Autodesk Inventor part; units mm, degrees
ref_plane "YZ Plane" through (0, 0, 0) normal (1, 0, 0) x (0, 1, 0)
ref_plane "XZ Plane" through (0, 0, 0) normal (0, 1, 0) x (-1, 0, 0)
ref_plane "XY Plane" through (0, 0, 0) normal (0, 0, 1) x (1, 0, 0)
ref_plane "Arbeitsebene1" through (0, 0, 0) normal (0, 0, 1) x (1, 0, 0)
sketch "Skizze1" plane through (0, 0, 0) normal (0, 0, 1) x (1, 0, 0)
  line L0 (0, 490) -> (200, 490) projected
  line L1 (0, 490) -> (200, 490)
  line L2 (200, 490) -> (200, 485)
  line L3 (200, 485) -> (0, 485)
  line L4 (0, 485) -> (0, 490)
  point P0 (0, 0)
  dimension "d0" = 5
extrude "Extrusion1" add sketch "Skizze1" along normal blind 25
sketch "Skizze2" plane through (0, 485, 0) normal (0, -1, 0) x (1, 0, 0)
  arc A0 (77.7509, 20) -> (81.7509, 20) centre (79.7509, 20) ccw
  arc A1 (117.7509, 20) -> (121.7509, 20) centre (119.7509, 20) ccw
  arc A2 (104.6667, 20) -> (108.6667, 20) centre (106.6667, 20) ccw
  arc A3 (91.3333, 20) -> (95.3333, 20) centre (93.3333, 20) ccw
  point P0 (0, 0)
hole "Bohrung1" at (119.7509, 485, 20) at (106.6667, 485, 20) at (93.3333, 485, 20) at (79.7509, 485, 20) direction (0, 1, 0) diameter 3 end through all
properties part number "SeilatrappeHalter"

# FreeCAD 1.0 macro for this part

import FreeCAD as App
import Part
import Sketcher

doc = App.newDocument("Part")
body = doc.addObject("PartDesign::Body", "Body")

# Sketch on XY plane
sketch1 = body.newObject("Sketcher::SketchObject", "Sketch")
sketch1.AttachmentSupport = (doc.getObject("XY_Plane"), [""])
sketch1.MapMode = "FlatFace"
sketch1.addGeometry(Part.LineSegment(App.Vector(200, 490, 0), App.Vector(0, 490, 0)), False)
sketch1.addGeometry(Part.LineSegment(App.Vector(0, 490, 0), App.Vector(0, 485, 0)), False)
sketch1.addGeometry(Part.LineSegment(App.Vector(0, 485, 0), App.Vector(200, 485, 0)), False)
sketch1.addGeometry(Part.LineSegment(App.Vector(200, 485, 0), App.Vector(200, 490, 0)), False)
sketch1.addConstraint(Sketcher.Constraint("Coincident", 0, 2, 1, 1))
sketch1.addConstraint(Sketcher.Constraint("Coincident", 1, 2, 2, 1))
sketch1.addConstraint(Sketcher.Constraint("Coincident", 2, 2, 3, 1))
sketch1.addConstraint(Sketcher.Constraint("Coincident", 3, 2, 0, 1))
sketch1.addConstraint(Sketcher.Constraint("Horizontal", 0))
sketch1.addConstraint(Sketcher.Constraint("Vertical", 1))
sketch1.addConstraint(Sketcher.Constraint("Horizontal", 2))
sketch1.addConstraint(Sketcher.Constraint("Vertical", 3))
sketch1.addConstraint(Sketcher.Constraint("PointOnObject", 0, 2, -2))
sketch1.addConstraint(Sketcher.Constraint("DistanceY", 1, 2, 1, 1, 5.0))
sketch1.addConstraint(Sketcher.Constraint("DistanceX", 0, 2, 0, 1, 200.0))
sketch1.addConstraint(Sketcher.Constraint("DistanceY", -1, 1, 0, 2, 490.0))
pad1 = body.newObject("PartDesign::Pad", "Pad")
pad1.Profile = sketch1
pad1.Length = 25

# Sketch on XZ plane
sketch2 = body.newObject("Sketcher::SketchObject", "Sketch001")
sketch2.AttachmentSupport = (doc.getObject("XZ_Plane"), [""])
sketch2.MapMode = "FlatFace"
sketch2.AttachmentOffset = App.Placement(App.Vector(0, 0, -485), App.Rotation())
sketch2.addGeometry(Part.Circle(App.Vector(119.7509, 20, 0), App.Vector(0, 0, 1), 1.5), False)
sketch2.addGeometry(Part.Circle(App.Vector(106.6667, 20, 0), App.Vector(0, 0, 1), 1.5), False)
sketch2.addGeometry(Part.Circle(App.Vector(93.3333, 20, 0), App.Vector(0, 0, 1), 1.5), False)
sketch2.addGeometry(Part.Circle(App.Vector(79.7509, 20, 0), App.Vector(0, 0, 1), 1.5), False)
sketch2.addConstraint(Sketcher.Constraint("Equal", 0, 1))
sketch2.addConstraint(Sketcher.Constraint("Equal", 1, 2))
sketch2.addConstraint(Sketcher.Constraint("Equal", 2, 3))
sketch2.addConstraint(Sketcher.Constraint("Horizontal", 0, 3, 1, 3))
sketch2.addConstraint(Sketcher.Constraint("Horizontal", 1, 3, 2, 3))
sketch2.addConstraint(Sketcher.Constraint("Horizontal", 2, 3, 3, 3))
sketch2.addConstraint(Sketcher.Constraint("Diameter", 0, 3.0))
sketch2.addConstraint(Sketcher.Constraint("DistanceY", -1, 1, 0, 3, 20.0))
sketch2.addConstraint(Sketcher.Constraint("DistanceX", 3, 3, 0, 3, 40.0))
sketch2.addConstraint(Sketcher.Constraint("DistanceX", -1, 1, 0, 3, 119.751))
sketch2.addConstraint(Sketcher.Constraint("DistanceX", -1, 1, 1, 3, 106.6667))
sketch2.addConstraint(Sketcher.Constraint("DistanceX", -1, 1, 2, 3, 93.3333))
doc.recompute()
hole = body.newObject("PartDesign::Hole", "Hole")
hole.Profile = sketch2
hole.ThreadType = "None"
hole.Diameter = 3
hole.DepthType = "ThroughAll"

doc.recompute()
